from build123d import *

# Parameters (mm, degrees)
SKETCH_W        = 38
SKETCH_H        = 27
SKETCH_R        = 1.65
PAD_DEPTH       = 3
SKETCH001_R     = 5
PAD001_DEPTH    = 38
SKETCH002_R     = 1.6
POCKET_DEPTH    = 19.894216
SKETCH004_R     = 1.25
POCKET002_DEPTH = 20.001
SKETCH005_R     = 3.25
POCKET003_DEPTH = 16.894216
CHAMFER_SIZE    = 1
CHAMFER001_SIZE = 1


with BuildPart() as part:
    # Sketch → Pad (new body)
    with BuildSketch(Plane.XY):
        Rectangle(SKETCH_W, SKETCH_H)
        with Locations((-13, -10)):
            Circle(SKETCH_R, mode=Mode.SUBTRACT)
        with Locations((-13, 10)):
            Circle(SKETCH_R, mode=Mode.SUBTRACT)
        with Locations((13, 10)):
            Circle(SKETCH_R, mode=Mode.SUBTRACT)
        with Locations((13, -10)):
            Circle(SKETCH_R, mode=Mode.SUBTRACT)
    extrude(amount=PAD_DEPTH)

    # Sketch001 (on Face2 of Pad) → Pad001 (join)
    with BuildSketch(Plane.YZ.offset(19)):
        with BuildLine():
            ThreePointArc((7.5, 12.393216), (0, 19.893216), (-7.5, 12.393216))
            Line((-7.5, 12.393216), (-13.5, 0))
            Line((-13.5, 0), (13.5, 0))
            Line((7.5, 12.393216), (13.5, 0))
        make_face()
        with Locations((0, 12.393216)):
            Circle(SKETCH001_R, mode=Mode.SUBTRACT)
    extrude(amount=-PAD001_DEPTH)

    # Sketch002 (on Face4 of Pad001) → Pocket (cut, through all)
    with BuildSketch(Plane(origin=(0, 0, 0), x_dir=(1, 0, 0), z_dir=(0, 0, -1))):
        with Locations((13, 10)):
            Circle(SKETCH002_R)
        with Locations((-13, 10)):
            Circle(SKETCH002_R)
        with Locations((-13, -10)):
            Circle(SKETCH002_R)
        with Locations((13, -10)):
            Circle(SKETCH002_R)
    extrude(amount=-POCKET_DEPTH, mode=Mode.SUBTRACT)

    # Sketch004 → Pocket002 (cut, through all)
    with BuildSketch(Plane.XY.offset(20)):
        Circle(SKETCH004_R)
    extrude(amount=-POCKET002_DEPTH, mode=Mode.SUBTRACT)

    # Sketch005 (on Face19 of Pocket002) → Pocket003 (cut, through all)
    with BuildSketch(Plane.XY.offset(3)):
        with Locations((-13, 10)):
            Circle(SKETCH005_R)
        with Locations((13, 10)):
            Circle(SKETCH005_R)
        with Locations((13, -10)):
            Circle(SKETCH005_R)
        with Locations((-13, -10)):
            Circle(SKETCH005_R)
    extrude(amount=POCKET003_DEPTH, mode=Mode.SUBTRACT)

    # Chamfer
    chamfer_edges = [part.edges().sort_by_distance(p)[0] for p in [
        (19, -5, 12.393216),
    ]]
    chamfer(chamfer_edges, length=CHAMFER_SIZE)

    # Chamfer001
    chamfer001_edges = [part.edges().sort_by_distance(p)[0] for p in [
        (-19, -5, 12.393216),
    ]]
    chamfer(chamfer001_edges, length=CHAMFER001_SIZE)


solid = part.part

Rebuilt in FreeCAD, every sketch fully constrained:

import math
import FreeCAD as App
import Part
import Sketcher

V = App.Vector
Q = App.Units.Quantity


def edges_at(feature, points):
    """Names of the edges that pass closest to the given points."""
    edges = feature.Shape.Edges
    near = lambda p: min(range(len(edges)), key=lambda i: edges[i].distToShape(Part.Vertex(*p))[0])
    return sorted({f"Edge{near(p) + 1}" for p in points})


def add_polygon(sketch, points):
    """Adds a closed chain of lines whose ends are joined by coincident constraints."""
    first, n = sketch.GeometryCount, len(points)
    for a, b in zip(points, points[1:] + points[:1]):
        sketch.addGeometry(Part.LineSegment(App.Vector(*a, 0), App.Vector(*b, 0)), False)
    for i in range(n):
        sketch.addConstraint(Sketcher.Constraint("Coincident", first + i, 2, first + (i + 1) % n, 1))

doc = App.newDocument("Part")
body = doc.addObject("PartDesign::Body", "Body")

# Sketch on XY plane
sketch1 = body.newObject("Sketcher::SketchObject", "Sketch")
sketch1.AttachmentSupport = (doc.getObject("XY_Plane"), [""])
sketch1.MapMode = "FlatFace"
add_polygon(sketch1, [(-19, 13.5), (-19, -13.5), (19, -13.5), (19, 13.5)])  # lines 0-3
sketch1.addGeometry(Part.Circle(V(-13, -10, 0), V(0, 0, 1), 1.6), False)  # 4
sketch1.addGeometry(Part.Circle(V(13, -10, 0), V(0, 0, 1), 1.6), False)  # 5
sketch1.addGeometry(Part.Circle(V(-13, 10, 0), V(0, 0, 1), 1.6), False)  # 6
sketch1.addGeometry(Part.Circle(V(13, 10, 0), V(0, 0, 1), 1.6), False)  # 7
sketch1.addConstraint([
    Sketcher.Constraint("Vertical", 0),
    Sketcher.Constraint("Horizontal", 1),
    Sketcher.Constraint("Vertical", 2),
    Sketcher.Constraint("Horizontal", 3),
    Sketcher.Constraint("Equal", 4, 5),
    Sketcher.Constraint("Equal", 5, 6),
    Sketcher.Constraint("Equal", 6, 7),
    Sketcher.Constraint("Symmetric", 5, 3, 6, 3, -1, 1),
    Sketcher.Constraint("Symmetric", 4, 3, 7, 3, -1, 1),
    Sketcher.Constraint("Symmetric", 0, 2, 2, 2, -1, 1),
    Sketcher.Constraint("Symmetric", 4, 3, 5, 3, -2),
    Sketcher.Constraint("Diameter", 4, Q("3.3 mm")),
    Sketcher.Constraint("DistanceX", 1, 1, 1, 2, Q("38 mm")),
    Sketcher.Constraint("DistanceY", 0, 2, 0, 1, Q("27 mm")),
    Sketcher.Constraint("DistanceX", 4, 3, -1, 1, Q("13 mm")),
    Sketcher.Constraint("DistanceY", 4, 3, -1, 1, Q("10 mm")),
])
pad1 = body.newObject("PartDesign::Pad", "Pad")
pad1.Profile = sketch1
pad1.Length = 3

# Sketch on YZ plane
sketch2 = body.newObject("Sketcher::SketchObject", "Sketch001")
sketch2.AttachmentSupport = (doc.getObject("YZ_Plane"), [""])
sketch2.MapMode = "FlatFace"
sketch2.AttachmentOffset = App.Placement(V(0, 0, 19), App.Rotation())
sketch2.addGeometry([
    Part.ArcOfCircle(Part.Circle(V(0, 12, 0), V(0, 0, 1), 8), math.radians(0), math.radians(180)),  # 0
    Part.LineSegment(V(-8, 12, 0), V(-14, 0, 0)),  # 1
    Part.LineSegment(V(-14, 0, 0), V(14, 0, 0)),  # 2
    Part.LineSegment(V(14, 0, 0), V(8, 12, 0)),  # 3
    Part.Circle(V(0, 12, 0), V(0, 0, 1), 5),  # 4
], False)
sketch2.addConstraint([
    Sketcher.Constraint("Coincident", 0, 2, 1, 1),
    Sketcher.Constraint("Coincident", 1, 2, 2, 1),
    Sketcher.Constraint("Coincident", 2, 2, 3, 1),
    Sketcher.Constraint("Coincident", 3, 2, 0, 1),
    Sketcher.Constraint("Horizontal", 2),
    Sketcher.Constraint("Coincident", 4, 3, 0, 3),
    Sketcher.Constraint("Symmetric", 1, 2, 2, 2, -1, 1),
    Sketcher.Constraint("Symmetric", 0, 2, 3, 2, -2),
    Sketcher.Constraint("Horizontal", 4, 3, 0, 2),
    Sketcher.Constraint("Diameter", 4, Q("10 mm")),
    Sketcher.Constraint("Radius", 0, Q("7.5 mm")),
    Sketcher.Constraint("DistanceX", 2, 1, 2, 2, Q("27 mm")),
    Sketcher.Constraint("Distance", 1, Q("13.769234 mm")),
])
pad2 = body.newObject("PartDesign::Pad", "Pad001")
pad2.Profile = sketch2
pad2.Length = 38
pad2.Reversed = True

# Sketch on XY plane
sketch3 = body.newObject("Sketcher::SketchObject", "Sketch002")
sketch3.AttachmentSupport = (doc.getObject("XY_Plane"), [""])
sketch3.MapMode = "FlatFace"
sketch3.addGeometry([
    Part.Circle(V(13, -10, 0), V(0, 0, 1), 1.6),
    Part.Circle(V(-13, -10, 0), V(0, 0, 1), 1.6),
    Part.Circle(V(-13, 10, 0), V(0, 0, 1), 1.6),
    Part.Circle(V(13, 10, 0), V(0, 0, 1), 1.6),
], False)
sketch3.addConstraint([
    Sketcher.Constraint("Equal", 0, 1),
    Sketcher.Constraint("Equal", 1, 2),
    Sketcher.Constraint("Equal", 2, 3),
    Sketcher.Constraint("Symmetric", 0, 3, 2, 3, -1, 1),
    Sketcher.Constraint("Symmetric", 1, 3, 3, 3, -1, 1),
    Sketcher.Constraint("Symmetric", 0, 3, 1, 3, -2),
    Sketcher.Constraint("Diameter", 0, Q("3.2 mm")),
    Sketcher.Constraint("DistanceX", -1, 1, 0, 3, Q("13 mm")),
    Sketcher.Constraint("DistanceY", 0, 3, -1, 1, Q("10 mm")),
])
pocket1 = body.newObject("PartDesign::Pocket", "Pocket")
pocket1.Profile = sketch3
pocket1.Type = "ThroughAll"
pocket1.Reversed = True

# Sketch on XY plane
sketch4 = body.newObject("Sketcher::SketchObject", "Sketch003")
sketch4.AttachmentSupport = (doc.getObject("XY_Plane"), [""])
sketch4.MapMode = "FlatFace"
sketch4.AttachmentOffset = App.Placement(V(0, 0, 20), App.Rotation())
sketch4.addGeometry(Part.Circle(V(0, 0, 0), V(0, 0, 1), 1.2), False)
sketch4.addConstraint([
    Sketcher.Constraint("Coincident", 0, 3, -1, 1),
    Sketcher.Constraint("Diameter", 0, Q("2.5 mm")),
])
pocket2 = body.newObject("PartDesign::Pocket", "Pocket001")
pocket2.Profile = sketch4
pocket2.Type = "ThroughAll"

# Sketch on XY plane
sketch5 = body.newObject("Sketcher::SketchObject", "Sketch004")
sketch5.AttachmentSupport = (doc.getObject("XY_Plane"), [""])
sketch5.MapMode = "FlatFace"
sketch5.AttachmentOffset = App.Placement(V(0, 0, 3), App.Rotation())
sketch5.addGeometry([
    Part.Circle(V(-13, 10, 0), V(0, 0, 1), 3.2),
    Part.Circle(V(13, 10, 0), V(0, 0, 1), 3.2),
    Part.Circle(V(13, -10, 0), V(0, 0, 1), 3.2),
    Part.Circle(V(-13, -10, 0), V(0, 0, 1), 3.2),
], False)
sketch5.addConstraint([
    Sketcher.Constraint("Equal", 0, 1),
    Sketcher.Constraint("Equal", 1, 2),
    Sketcher.Constraint("Equal", 2, 3),
    Sketcher.Constraint("Symmetric", 0, 3, 2, 3, -1, 1),
    Sketcher.Constraint("Symmetric", 1, 3, 3, 3, -1, 1),
    Sketcher.Constraint("Symmetric", 0, 3, 1, 3, -2),
    Sketcher.Constraint("Diameter", 0, Q("6.5 mm")),
    Sketcher.Constraint("DistanceX", 0, 3, -1, 1, Q("13 mm")),
    Sketcher.Constraint("DistanceY", -1, 1, 0, 3, Q("10 mm")),
])
pocket3 = body.newObject("PartDesign::Pocket", "Pocket002")
pocket3.Profile = sketch5
pocket3.Type = "ThroughAll"
pocket3.Reversed = True
doc.recompute()

chamfer = body.newObject("PartDesign::Chamfer", "Chamfer")
chamfer.Base = (pocket3, edges_at(pocket3, [(19, -5, 12.393)]))
chamfer.Size = 1
doc.recompute()

chamfer2 = body.newObject("PartDesign::Chamfer", "Chamfer001")
chamfer2.Base = (chamfer, edges_at(chamfer, [(-19, -5, 12.393)]))
chamfer2.Size = 1

doc.recompute()
